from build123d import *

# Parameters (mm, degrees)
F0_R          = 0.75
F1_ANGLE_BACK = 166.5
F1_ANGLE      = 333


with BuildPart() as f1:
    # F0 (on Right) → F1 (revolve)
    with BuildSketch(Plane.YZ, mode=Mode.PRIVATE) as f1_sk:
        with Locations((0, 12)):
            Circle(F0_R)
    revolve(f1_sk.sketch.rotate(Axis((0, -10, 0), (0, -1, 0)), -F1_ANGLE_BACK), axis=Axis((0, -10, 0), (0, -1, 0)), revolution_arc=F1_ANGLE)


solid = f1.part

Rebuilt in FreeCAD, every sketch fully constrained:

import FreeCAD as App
import Part
import Sketcher

V = App.Vector
Q = App.Units.Quantity

doc = App.newDocument("Part")
params = doc.addObject("Spreadsheet::Sheet", "Params")
for row, (alias, value) in enumerate([
    ("sketch1_diameter", "1.5 mm"),
    ("revolution_angle", "333 deg"),
], start=1):
    params.set(f"A{row}", alias)
    params.set(f"B{row}", "=" + value)
    params.setAlias(f"B{row}", alias)

body = doc.addObject("PartDesign::Body", "Body")

# Sketch on an angled plane
sketch1 = body.newObject("Sketcher::SketchObject", "Sketch")
sketch1.Placement = App.Placement(V(0, 0, 0), App.Rotation(V(0, 1, 0), V(0.233445364, 0, -0.97236992), V(-0.97236992, 0, -0.233445364), "ZXY"))
sketch1.addGeometry(Part.Circle(V(0, 12, 0), V(0, 0, 1), 0.75), False)
sketch1.addConstraint(Sketcher.Constraint("PointOnObject", 0, 3, -2))
sketch1.addConstraint(Sketcher.Constraint("Diameter", 0, Q("1.5 mm")))
sketch1.addConstraint(Sketcher.Constraint("DistanceY", -1, 1, 0, 3, Q("12 mm")))
sketch1.setExpression("Constraints[1]", "Params.sketch1_diameter")
revolution = body.newObject("PartDesign::Revolution", "Revolution")
revolution.Profile = sketch1
revolution.ReferenceAxis = (sketch1, ["H_Axis"])
revolution.setExpression("Angle", "Params.revolution_angle")
revolution.Reversed = True

doc.recompute()
